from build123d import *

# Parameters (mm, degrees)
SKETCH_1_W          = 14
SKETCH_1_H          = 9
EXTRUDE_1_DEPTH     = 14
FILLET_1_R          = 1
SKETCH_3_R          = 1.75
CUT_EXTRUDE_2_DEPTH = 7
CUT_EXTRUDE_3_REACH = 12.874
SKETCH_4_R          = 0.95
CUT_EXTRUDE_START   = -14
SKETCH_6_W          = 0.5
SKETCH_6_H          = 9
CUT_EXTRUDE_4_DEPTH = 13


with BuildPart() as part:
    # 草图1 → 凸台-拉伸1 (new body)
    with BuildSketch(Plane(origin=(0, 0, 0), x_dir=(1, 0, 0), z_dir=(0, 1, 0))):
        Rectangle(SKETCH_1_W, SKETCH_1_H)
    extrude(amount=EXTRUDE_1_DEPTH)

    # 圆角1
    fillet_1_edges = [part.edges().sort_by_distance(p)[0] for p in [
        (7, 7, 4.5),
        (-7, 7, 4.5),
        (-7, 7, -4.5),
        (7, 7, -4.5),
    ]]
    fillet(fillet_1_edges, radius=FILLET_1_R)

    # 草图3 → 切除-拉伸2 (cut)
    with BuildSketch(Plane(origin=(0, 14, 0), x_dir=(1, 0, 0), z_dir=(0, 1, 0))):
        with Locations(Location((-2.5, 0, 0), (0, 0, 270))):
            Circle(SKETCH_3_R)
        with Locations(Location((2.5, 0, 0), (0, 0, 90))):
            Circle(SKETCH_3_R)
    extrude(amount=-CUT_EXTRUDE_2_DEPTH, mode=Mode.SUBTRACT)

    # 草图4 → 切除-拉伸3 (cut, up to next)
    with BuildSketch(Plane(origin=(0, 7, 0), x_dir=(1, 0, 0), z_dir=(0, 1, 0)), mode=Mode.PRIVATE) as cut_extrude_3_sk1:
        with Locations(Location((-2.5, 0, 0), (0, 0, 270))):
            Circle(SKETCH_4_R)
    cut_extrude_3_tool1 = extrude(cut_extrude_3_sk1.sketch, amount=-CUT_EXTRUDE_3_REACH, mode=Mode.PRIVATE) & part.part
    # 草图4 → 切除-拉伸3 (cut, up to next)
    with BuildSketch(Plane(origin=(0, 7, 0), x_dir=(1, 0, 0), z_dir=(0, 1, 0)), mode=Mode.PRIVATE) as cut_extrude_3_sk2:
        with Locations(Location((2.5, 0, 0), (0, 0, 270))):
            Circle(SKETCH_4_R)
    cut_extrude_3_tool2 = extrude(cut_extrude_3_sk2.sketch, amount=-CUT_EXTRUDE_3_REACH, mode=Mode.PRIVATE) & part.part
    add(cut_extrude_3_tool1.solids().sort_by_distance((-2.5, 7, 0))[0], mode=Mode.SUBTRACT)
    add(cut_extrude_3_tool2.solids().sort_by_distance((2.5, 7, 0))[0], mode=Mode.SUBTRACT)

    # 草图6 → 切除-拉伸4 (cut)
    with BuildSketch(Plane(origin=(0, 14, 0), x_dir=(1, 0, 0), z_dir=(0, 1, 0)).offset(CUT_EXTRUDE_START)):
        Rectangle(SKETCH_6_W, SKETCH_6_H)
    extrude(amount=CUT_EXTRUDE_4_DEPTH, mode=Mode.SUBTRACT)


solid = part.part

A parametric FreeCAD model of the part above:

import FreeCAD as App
import Part
import Sketcher

V = App.Vector
Q = App.Units.Quantity


def edges_at(feature, points):
    """Names of the edges that pass closest to the given points."""
    edges = feature.Shape.Edges
    near = lambda p: min(range(len(edges)), key=lambda i: edges[i].distToShape(Part.Vertex(*p))[0])
    return sorted({f"Edge{near(p) + 1}" for p in points})


def add_polygon(sketch, points):
    """Adds a closed chain of lines whose ends are joined by coincident constraints."""
    first, n = sketch.GeometryCount, len(points)
    for a, b in zip(points, points[1:] + points[:1]):
        sketch.addGeometry(Part.LineSegment(App.Vector(*a, 0), App.Vector(*b, 0)), False)
    for i in range(n):
        sketch.addConstraint(Sketcher.Constraint("Coincident", first + i, 2, first + (i + 1) % n, 1))

doc = App.newDocument("Part")
body = doc.addObject("PartDesign::Body", "Body")

sketch1 = doc.addObject("Sketcher::SketchObject", "Sketch")
body.addObject(sketch1)
sketch1.AttachmentSupport = (doc.XZ_Plane, [""])
sketch1.MapMode = "FlatFace"
add_polygon(sketch1, [(-7, -4), (-7, 4), (7, 4), (7, -4)])
sketch1.addConstraint(Sketcher.Constraint("Vertical", 0))
sketch1.addConstraint(Sketcher.Constraint("Horizontal", 1))
sketch1.addConstraint(Sketcher.Constraint("Vertical", 2))
sketch1.addConstraint(Sketcher.Constraint("Horizontal", 3))
sketch1.addConstraint(Sketcher.Constraint("Symmetric", 0, 2, 2, 2, -1, 1))
sketch1.addConstraint(Sketcher.Constraint("DistanceX", 1, 1, 1, 2, Q("14 mm")))
sketch1.addConstraint(Sketcher.Constraint("DistanceY", 0, 1, 0, 2, Q("9 mm")))
pad1 = doc.addObject("PartDesign::Pad", "Pad")
body.addObject(pad1)
pad1.Profile = sketch1
pad1.Length = 14
pad1.Reversed = True
doc.recompute()

fillet = doc.addObject("PartDesign::Fillet", "Fillet")
body.addObject(fillet)
fillet.Base = (pad1, edges_at(pad1, [
    (7, 7, 4.5),
    (-7, 7, 4.5),
    (-7, 7, -4.5),
    (7, 7, -4.5),
]))
fillet.Radius = 1

sketch2 = doc.addObject("Sketcher::SketchObject", "Sketch001")
body.addObject(sketch2)
sketch2.AttachmentSupport = (doc.XZ_Plane, [""])
sketch2.MapMode = "FlatFace"
sketch2.AttachmentOffset = App.Placement(V(0, 0, -14), App.Rotation())
sketch2.addGeometry(Part.Circle(V(-2.5, 0, 0), V(0, 0, 1), 1.8), False)
sketch2.addGeometry(Part.Circle(V(2.5, 0, 0), V(0, 0, 1), 1.8), False)
sketch2.addConstraint(Sketcher.Constraint("Equal", 0, 1))
sketch2.addConstraint(Sketcher.Constraint("Symmetric", 0, 3, 1, 3, -1, 1))
sketch2.addConstraint(Sketcher.Constraint("PointOnObject", 0, 3, -1))
sketch2.addConstraint(Sketcher.Constraint("Diameter", 0, Q("3.5 mm")))
sketch2.addConstraint(Sketcher.Constraint("DistanceX", 0, 3, 1, 3, Q("5 mm")))
pocket1 = doc.addObject("PartDesign::Pocket", "Pocket")
body.addObject(pocket1)
pocket1.Profile = sketch2
pocket1.Length = 7
pocket1.Reversed = True

sketch3 = doc.addObject("Sketcher::SketchObject", "Sketch002")
body.addObject(sketch3)
sketch3.AttachmentSupport = (doc.XZ_Plane, [""])
sketch3.MapMode = "FlatFace"
sketch3.AttachmentOffset = App.Placement(V(0, 0, -7), App.Rotation())
sketch3.addGeometry(Part.Circle(V(-2.5, 0, 0), V(0, 0, 1), 0.9), False)
sketch3.addConstraint(Sketcher.Constraint("PointOnObject", 0, 3, -1))
sketch3.addConstraint(Sketcher.Constraint("Diameter", 0, Q("1.9 mm")))
sketch3.addConstraint(Sketcher.Constraint("DistanceX", 0, 3, -1, 1, Q("2.5 mm")))
pocket2 = doc.addObject("PartDesign::Pocket", "Pocket001")
body.addObject(pocket2)
pocket2.Profile = sketch3
pocket2.Type = "UpToFirst"
pocket2.Reversed = True

sketch4 = doc.addObject("Sketcher::SketchObject", "Sketch003")
body.addObject(sketch4)
sketch4.AttachmentSupport = (doc.XZ_Plane, [""])
sketch4.MapMode = "FlatFace"
sketch4.AttachmentOffset = App.Placement(V(0, 0, -7), App.Rotation())
sketch4.addGeometry(Part.Circle(V(2.5, 0, 0), V(0, 0, 1), 0.9), False)
sketch4.addConstraint(Sketcher.Constraint("PointOnObject", 0, 3, -1))
sketch4.addConstraint(Sketcher.Constraint("Diameter", 0, Q("1.9 mm")))
sketch4.addConstraint(Sketcher.Constraint("DistanceX", -1, 1, 0, 3, Q("2.5 mm")))
pocket3 = doc.addObject("PartDesign::Pocket", "Pocket002")
body.addObject(pocket3)
pocket3.Profile = sketch4
pocket3.Type = "UpToFirst"
pocket3.Reversed = True

sketch5 = doc.addObject("Sketcher::SketchObject", "Sketch004")
body.addObject(sketch5)
sketch5.AttachmentSupport = (doc.XZ_Plane, [""])
sketch5.MapMode = "FlatFace"
add_polygon(sketch5, [(-0.2, -4.5), (-0.2, 4.5), (0.2, 4.5), (0.2, -4.5)])
sketch5.addConstraint(Sketcher.Constraint("Vertical", 0))
sketch5.addConstraint(Sketcher.Constraint("Horizontal", 1))
sketch5.addConstraint(Sketcher.Constraint("Vertical", 2))
sketch5.addConstraint(Sketcher.Constraint("Horizontal", 3))
sketch5.addConstraint(Sketcher.Constraint("Symmetric", 0, 2, 2, 2, -1, 1))
sketch5.addConstraint(Sketcher.Constraint("DistanceY", 0, 1, 0, 2, Q("9 mm")))
sketch5.addConstraint(Sketcher.Constraint("DistanceX", 1, 1, 1, 2, Q("0.5 mm")))
pocket4 = doc.addObject("PartDesign::Pocket", "Pocket003")
body.addObject(pocket4)
pocket4.Profile = sketch5
pocket4.Length = 13

doc.recompute()
